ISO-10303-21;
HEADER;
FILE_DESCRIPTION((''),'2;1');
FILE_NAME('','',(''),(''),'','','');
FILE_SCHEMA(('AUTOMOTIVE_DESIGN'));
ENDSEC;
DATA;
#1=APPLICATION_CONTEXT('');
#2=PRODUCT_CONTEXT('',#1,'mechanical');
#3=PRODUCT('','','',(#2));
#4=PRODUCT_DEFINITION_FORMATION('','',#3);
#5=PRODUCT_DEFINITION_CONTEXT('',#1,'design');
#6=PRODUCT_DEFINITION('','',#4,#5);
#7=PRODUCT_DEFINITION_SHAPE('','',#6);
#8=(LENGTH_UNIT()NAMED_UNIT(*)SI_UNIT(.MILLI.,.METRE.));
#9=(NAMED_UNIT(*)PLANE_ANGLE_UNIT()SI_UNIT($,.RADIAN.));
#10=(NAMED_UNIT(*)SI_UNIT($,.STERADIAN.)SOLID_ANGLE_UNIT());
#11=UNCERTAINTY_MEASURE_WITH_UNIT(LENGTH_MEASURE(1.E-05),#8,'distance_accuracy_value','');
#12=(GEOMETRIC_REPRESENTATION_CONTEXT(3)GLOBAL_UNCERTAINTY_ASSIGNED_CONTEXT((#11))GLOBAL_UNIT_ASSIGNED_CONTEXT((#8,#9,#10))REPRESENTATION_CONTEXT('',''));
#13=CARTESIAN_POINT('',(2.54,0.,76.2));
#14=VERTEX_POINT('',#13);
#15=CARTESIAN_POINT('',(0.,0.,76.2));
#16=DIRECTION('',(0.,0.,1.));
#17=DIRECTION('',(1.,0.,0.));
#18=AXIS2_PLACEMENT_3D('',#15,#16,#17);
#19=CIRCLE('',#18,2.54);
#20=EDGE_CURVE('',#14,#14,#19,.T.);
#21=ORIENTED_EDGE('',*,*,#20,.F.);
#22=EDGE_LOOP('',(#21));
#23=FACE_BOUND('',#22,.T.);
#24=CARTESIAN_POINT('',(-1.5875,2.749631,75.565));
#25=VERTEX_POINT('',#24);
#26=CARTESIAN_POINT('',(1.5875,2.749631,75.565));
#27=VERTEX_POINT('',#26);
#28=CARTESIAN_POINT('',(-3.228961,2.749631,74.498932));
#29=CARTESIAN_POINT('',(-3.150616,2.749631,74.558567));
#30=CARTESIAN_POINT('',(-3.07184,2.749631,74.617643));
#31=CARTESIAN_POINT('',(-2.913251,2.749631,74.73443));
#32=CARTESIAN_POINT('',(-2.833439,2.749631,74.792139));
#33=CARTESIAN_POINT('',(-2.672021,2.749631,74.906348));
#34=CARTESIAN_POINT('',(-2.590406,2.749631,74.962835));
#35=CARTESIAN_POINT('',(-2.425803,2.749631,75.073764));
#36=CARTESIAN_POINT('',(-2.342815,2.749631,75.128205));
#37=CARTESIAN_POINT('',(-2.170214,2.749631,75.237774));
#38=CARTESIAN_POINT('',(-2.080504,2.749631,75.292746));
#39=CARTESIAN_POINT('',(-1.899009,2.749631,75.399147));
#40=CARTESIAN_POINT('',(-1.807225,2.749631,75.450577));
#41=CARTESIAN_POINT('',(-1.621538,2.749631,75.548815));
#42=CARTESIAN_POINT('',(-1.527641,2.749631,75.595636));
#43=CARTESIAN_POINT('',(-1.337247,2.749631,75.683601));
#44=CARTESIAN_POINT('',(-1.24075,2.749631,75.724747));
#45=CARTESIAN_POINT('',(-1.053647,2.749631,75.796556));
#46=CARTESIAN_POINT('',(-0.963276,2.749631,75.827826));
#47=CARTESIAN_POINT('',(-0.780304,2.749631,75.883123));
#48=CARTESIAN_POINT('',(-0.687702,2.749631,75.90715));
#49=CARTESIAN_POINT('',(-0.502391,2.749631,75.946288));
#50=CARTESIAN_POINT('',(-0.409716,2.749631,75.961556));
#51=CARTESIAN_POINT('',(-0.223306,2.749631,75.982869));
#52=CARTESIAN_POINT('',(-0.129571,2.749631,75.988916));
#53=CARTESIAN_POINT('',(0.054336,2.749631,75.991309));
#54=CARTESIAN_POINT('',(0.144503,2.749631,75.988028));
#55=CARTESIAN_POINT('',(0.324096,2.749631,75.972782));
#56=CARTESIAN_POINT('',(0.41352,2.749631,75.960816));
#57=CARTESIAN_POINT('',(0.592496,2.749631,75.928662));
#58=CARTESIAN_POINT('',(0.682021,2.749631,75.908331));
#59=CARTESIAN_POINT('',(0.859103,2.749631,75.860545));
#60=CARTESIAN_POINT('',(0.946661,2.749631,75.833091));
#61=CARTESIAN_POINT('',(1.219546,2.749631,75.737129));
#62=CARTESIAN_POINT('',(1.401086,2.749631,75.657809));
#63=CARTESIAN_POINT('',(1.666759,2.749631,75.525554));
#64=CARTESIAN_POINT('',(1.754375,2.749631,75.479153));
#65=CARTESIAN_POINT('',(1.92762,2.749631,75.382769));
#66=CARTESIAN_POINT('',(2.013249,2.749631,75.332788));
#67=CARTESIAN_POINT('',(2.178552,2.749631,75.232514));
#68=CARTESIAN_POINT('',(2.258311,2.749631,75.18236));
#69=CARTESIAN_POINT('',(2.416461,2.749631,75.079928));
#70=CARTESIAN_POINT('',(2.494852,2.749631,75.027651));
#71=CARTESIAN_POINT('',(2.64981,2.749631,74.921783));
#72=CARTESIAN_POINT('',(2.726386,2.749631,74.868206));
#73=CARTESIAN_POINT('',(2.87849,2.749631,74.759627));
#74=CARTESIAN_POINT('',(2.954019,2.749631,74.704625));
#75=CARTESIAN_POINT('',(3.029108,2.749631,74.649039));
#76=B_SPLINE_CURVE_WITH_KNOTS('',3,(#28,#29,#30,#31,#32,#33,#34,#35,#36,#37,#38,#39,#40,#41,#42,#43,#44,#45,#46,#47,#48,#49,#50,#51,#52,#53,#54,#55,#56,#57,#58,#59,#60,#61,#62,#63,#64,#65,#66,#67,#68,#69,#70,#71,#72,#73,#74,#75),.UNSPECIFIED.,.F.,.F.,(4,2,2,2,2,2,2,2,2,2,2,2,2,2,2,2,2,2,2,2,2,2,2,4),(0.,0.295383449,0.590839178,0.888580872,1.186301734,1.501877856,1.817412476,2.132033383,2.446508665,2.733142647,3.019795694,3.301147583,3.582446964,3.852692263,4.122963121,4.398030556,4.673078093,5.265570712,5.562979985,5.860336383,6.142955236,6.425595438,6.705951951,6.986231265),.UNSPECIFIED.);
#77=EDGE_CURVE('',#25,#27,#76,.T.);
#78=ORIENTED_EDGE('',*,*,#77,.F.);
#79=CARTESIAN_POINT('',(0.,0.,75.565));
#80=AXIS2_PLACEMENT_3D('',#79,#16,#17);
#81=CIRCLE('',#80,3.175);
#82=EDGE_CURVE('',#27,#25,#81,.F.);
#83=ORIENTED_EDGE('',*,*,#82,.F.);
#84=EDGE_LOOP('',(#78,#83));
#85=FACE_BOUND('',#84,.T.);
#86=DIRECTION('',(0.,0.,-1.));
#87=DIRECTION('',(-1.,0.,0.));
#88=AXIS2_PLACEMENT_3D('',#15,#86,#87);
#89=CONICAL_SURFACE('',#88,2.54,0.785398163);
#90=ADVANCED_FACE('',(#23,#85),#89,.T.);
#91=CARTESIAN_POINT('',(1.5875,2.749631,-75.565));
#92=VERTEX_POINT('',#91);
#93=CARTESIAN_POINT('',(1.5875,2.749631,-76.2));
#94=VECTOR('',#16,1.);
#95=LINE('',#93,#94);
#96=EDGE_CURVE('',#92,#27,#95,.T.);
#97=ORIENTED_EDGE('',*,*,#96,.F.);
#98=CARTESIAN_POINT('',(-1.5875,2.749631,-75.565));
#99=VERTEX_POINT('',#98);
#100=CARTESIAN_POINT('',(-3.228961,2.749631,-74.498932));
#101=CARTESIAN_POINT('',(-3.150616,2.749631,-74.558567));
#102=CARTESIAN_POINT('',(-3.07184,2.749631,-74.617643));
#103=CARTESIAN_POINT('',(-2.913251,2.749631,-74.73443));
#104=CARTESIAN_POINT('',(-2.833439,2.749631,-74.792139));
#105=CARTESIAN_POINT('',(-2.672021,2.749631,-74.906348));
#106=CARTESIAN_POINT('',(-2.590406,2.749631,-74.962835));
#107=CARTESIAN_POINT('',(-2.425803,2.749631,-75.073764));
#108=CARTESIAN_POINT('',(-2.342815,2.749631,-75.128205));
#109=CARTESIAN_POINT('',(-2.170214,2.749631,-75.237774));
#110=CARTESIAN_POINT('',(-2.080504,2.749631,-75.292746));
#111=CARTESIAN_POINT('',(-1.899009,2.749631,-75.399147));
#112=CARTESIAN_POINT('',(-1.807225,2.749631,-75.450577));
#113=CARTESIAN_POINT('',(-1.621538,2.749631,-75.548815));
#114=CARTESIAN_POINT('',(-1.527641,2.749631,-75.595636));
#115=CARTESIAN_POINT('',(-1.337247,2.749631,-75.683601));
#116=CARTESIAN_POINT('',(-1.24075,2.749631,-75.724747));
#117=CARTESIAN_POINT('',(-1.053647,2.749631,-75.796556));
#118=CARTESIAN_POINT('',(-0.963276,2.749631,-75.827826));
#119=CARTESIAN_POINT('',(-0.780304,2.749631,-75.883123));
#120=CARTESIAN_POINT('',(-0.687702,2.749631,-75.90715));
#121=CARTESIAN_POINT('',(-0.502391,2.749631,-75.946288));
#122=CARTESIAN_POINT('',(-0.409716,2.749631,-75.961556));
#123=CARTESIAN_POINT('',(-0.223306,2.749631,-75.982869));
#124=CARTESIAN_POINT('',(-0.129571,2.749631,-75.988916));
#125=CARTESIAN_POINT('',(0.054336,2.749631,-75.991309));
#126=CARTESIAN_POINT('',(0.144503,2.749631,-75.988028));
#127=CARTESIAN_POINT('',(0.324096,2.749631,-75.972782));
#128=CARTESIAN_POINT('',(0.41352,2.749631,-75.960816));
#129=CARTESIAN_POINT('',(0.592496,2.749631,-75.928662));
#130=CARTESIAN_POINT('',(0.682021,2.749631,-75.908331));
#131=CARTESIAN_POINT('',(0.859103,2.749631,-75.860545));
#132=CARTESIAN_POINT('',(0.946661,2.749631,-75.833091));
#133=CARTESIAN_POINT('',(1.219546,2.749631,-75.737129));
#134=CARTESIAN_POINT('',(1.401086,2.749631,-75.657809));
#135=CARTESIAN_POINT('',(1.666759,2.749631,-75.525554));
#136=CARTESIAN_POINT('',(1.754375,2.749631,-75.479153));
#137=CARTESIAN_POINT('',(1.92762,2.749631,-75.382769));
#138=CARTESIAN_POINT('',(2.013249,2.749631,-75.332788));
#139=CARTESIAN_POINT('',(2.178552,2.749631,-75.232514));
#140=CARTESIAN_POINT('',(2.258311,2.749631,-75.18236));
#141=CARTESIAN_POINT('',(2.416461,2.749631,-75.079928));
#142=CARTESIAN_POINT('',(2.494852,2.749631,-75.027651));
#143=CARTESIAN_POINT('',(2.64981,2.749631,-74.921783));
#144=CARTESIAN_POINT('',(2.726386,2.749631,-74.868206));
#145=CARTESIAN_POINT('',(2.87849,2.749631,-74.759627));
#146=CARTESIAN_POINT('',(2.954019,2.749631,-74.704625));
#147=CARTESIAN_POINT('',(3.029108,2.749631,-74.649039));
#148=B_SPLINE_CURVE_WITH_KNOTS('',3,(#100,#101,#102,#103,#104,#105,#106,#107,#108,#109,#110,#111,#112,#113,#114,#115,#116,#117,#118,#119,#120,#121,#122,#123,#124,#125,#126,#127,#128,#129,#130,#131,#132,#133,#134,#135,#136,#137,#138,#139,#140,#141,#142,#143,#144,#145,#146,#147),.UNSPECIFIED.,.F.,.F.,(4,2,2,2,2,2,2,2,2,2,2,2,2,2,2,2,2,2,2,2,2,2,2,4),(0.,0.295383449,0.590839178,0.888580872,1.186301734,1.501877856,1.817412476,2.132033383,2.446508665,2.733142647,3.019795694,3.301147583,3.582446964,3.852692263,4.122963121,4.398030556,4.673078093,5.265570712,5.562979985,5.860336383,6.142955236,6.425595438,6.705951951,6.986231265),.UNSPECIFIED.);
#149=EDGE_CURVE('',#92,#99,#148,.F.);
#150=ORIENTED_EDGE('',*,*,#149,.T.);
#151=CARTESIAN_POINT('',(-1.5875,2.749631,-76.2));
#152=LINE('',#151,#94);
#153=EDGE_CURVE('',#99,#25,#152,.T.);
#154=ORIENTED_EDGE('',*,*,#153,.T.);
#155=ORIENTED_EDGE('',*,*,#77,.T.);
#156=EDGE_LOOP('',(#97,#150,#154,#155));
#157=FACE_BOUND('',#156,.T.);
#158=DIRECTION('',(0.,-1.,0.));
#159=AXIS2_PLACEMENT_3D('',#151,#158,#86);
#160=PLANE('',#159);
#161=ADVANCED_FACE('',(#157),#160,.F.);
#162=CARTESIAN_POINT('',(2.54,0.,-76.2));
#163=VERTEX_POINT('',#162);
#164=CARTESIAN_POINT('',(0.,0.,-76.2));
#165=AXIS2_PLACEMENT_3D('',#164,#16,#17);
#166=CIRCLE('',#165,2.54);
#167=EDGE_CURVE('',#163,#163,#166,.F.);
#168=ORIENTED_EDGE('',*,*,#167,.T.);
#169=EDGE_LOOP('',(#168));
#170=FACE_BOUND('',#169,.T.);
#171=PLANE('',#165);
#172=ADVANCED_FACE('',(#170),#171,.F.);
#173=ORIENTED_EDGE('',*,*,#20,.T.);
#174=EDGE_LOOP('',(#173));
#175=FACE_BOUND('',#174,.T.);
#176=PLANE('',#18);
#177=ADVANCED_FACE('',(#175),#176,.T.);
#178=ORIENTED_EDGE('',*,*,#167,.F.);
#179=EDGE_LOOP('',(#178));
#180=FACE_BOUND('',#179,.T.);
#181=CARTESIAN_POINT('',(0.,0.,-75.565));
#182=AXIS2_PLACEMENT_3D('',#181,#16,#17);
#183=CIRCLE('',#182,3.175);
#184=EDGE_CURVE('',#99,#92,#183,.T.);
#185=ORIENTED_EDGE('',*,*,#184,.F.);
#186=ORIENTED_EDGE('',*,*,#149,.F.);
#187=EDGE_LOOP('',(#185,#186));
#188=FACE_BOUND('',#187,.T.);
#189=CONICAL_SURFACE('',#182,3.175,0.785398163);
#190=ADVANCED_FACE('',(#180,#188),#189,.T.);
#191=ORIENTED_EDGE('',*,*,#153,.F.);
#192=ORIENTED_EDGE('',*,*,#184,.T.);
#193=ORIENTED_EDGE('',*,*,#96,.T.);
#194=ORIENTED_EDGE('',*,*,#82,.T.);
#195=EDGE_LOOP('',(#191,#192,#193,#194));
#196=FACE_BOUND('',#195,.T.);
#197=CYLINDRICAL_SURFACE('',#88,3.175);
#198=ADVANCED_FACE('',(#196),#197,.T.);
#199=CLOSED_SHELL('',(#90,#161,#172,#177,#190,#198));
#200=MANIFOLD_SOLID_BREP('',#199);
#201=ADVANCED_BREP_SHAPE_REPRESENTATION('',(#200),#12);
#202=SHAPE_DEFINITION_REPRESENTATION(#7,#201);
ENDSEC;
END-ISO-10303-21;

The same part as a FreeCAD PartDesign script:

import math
import FreeCAD as App
import Part
import Sketcher

V = App.Vector
Q = App.Units.Quantity


def edges_at(feature, points):
    """Names of the edges that pass closest to the given points."""
    edges = feature.Shape.Edges
    near = lambda p: min(range(len(edges)), key=lambda i: edges[i].distToShape(Part.Vertex(*p))[0])
    return sorted({f"Edge{near(p) + 1}" for p in points})

doc = App.newDocument("Part")
body = doc.addObject("PartDesign::Body", "Body")

# Sketch on XY plane
sketch1 = body.newObject("Sketcher::SketchObject", "Sketch")
sketch1.AttachmentSupport = (doc.getObject("XY_Plane"), [""])
sketch1.MapMode = "FlatFace"
sketch1.addGeometry(Part.Circle(V(0, 0, 0), V(0, 0, 1), 3.175), False)
sketch1.addConstraint([
    Sketcher.Constraint("Coincident", 0, 3, -1, 1),
    Sketcher.Constraint("Diameter", 0, Q("0.25 in")),
])
pad1 = body.newObject("PartDesign::Pad", "Pad")
pad1.Profile = sketch1
pad1.Length = Q("6 in")
pad1.Midplane = True
doc.recompute()

chamfer = body.newObject("PartDesign::Chamfer", "Chamfer")
chamfer.Base = (pad1, edges_at(pad1, [(-3.175, 0, -76.2), (-3.175, 0, 76.2)]))
chamfer.Size = Q("0.025 in")

# Sketch on XY plane
sketch2 = body.newObject("Sketcher::SketchObject", "Sketch001")
sketch2.AttachmentSupport = (doc.getObject("XY_Plane"), [""])
sketch2.MapMode = "FlatFace"
sketch2.addGeometry([
    Part.LineSegment(V(-1.5875, 2.749631, 0), V(1.5875, 2.749631, 0)),
    Part.ArcOfCircle(Part.Circle(V(0, 0, 0), V(0, 0, 1), 3.175), math.radians(60), math.radians(120)),
], False)
sketch2.addConstraint([
    Sketcher.Constraint("Coincident", 0, 1, 1, 2),
    Sketcher.Constraint("Coincident", 1, 1, 0, 2),
    Sketcher.Constraint("Horizontal", 0),
    Sketcher.Constraint("Coincident", 1, 3, -1, 1),
    Sketcher.Constraint("Radius", 1, Q("0.125 in")),
    Sketcher.Constraint("DistanceX", 0, 1, 0, 2, Q("0.125 in")),
])
pocket1 = body.newObject("PartDesign::Pocket", "Pocket")
pocket1.Profile = sketch2
pocket1.Type = "ThroughAll"
pocket1.Midplane = True

doc.recompute()
